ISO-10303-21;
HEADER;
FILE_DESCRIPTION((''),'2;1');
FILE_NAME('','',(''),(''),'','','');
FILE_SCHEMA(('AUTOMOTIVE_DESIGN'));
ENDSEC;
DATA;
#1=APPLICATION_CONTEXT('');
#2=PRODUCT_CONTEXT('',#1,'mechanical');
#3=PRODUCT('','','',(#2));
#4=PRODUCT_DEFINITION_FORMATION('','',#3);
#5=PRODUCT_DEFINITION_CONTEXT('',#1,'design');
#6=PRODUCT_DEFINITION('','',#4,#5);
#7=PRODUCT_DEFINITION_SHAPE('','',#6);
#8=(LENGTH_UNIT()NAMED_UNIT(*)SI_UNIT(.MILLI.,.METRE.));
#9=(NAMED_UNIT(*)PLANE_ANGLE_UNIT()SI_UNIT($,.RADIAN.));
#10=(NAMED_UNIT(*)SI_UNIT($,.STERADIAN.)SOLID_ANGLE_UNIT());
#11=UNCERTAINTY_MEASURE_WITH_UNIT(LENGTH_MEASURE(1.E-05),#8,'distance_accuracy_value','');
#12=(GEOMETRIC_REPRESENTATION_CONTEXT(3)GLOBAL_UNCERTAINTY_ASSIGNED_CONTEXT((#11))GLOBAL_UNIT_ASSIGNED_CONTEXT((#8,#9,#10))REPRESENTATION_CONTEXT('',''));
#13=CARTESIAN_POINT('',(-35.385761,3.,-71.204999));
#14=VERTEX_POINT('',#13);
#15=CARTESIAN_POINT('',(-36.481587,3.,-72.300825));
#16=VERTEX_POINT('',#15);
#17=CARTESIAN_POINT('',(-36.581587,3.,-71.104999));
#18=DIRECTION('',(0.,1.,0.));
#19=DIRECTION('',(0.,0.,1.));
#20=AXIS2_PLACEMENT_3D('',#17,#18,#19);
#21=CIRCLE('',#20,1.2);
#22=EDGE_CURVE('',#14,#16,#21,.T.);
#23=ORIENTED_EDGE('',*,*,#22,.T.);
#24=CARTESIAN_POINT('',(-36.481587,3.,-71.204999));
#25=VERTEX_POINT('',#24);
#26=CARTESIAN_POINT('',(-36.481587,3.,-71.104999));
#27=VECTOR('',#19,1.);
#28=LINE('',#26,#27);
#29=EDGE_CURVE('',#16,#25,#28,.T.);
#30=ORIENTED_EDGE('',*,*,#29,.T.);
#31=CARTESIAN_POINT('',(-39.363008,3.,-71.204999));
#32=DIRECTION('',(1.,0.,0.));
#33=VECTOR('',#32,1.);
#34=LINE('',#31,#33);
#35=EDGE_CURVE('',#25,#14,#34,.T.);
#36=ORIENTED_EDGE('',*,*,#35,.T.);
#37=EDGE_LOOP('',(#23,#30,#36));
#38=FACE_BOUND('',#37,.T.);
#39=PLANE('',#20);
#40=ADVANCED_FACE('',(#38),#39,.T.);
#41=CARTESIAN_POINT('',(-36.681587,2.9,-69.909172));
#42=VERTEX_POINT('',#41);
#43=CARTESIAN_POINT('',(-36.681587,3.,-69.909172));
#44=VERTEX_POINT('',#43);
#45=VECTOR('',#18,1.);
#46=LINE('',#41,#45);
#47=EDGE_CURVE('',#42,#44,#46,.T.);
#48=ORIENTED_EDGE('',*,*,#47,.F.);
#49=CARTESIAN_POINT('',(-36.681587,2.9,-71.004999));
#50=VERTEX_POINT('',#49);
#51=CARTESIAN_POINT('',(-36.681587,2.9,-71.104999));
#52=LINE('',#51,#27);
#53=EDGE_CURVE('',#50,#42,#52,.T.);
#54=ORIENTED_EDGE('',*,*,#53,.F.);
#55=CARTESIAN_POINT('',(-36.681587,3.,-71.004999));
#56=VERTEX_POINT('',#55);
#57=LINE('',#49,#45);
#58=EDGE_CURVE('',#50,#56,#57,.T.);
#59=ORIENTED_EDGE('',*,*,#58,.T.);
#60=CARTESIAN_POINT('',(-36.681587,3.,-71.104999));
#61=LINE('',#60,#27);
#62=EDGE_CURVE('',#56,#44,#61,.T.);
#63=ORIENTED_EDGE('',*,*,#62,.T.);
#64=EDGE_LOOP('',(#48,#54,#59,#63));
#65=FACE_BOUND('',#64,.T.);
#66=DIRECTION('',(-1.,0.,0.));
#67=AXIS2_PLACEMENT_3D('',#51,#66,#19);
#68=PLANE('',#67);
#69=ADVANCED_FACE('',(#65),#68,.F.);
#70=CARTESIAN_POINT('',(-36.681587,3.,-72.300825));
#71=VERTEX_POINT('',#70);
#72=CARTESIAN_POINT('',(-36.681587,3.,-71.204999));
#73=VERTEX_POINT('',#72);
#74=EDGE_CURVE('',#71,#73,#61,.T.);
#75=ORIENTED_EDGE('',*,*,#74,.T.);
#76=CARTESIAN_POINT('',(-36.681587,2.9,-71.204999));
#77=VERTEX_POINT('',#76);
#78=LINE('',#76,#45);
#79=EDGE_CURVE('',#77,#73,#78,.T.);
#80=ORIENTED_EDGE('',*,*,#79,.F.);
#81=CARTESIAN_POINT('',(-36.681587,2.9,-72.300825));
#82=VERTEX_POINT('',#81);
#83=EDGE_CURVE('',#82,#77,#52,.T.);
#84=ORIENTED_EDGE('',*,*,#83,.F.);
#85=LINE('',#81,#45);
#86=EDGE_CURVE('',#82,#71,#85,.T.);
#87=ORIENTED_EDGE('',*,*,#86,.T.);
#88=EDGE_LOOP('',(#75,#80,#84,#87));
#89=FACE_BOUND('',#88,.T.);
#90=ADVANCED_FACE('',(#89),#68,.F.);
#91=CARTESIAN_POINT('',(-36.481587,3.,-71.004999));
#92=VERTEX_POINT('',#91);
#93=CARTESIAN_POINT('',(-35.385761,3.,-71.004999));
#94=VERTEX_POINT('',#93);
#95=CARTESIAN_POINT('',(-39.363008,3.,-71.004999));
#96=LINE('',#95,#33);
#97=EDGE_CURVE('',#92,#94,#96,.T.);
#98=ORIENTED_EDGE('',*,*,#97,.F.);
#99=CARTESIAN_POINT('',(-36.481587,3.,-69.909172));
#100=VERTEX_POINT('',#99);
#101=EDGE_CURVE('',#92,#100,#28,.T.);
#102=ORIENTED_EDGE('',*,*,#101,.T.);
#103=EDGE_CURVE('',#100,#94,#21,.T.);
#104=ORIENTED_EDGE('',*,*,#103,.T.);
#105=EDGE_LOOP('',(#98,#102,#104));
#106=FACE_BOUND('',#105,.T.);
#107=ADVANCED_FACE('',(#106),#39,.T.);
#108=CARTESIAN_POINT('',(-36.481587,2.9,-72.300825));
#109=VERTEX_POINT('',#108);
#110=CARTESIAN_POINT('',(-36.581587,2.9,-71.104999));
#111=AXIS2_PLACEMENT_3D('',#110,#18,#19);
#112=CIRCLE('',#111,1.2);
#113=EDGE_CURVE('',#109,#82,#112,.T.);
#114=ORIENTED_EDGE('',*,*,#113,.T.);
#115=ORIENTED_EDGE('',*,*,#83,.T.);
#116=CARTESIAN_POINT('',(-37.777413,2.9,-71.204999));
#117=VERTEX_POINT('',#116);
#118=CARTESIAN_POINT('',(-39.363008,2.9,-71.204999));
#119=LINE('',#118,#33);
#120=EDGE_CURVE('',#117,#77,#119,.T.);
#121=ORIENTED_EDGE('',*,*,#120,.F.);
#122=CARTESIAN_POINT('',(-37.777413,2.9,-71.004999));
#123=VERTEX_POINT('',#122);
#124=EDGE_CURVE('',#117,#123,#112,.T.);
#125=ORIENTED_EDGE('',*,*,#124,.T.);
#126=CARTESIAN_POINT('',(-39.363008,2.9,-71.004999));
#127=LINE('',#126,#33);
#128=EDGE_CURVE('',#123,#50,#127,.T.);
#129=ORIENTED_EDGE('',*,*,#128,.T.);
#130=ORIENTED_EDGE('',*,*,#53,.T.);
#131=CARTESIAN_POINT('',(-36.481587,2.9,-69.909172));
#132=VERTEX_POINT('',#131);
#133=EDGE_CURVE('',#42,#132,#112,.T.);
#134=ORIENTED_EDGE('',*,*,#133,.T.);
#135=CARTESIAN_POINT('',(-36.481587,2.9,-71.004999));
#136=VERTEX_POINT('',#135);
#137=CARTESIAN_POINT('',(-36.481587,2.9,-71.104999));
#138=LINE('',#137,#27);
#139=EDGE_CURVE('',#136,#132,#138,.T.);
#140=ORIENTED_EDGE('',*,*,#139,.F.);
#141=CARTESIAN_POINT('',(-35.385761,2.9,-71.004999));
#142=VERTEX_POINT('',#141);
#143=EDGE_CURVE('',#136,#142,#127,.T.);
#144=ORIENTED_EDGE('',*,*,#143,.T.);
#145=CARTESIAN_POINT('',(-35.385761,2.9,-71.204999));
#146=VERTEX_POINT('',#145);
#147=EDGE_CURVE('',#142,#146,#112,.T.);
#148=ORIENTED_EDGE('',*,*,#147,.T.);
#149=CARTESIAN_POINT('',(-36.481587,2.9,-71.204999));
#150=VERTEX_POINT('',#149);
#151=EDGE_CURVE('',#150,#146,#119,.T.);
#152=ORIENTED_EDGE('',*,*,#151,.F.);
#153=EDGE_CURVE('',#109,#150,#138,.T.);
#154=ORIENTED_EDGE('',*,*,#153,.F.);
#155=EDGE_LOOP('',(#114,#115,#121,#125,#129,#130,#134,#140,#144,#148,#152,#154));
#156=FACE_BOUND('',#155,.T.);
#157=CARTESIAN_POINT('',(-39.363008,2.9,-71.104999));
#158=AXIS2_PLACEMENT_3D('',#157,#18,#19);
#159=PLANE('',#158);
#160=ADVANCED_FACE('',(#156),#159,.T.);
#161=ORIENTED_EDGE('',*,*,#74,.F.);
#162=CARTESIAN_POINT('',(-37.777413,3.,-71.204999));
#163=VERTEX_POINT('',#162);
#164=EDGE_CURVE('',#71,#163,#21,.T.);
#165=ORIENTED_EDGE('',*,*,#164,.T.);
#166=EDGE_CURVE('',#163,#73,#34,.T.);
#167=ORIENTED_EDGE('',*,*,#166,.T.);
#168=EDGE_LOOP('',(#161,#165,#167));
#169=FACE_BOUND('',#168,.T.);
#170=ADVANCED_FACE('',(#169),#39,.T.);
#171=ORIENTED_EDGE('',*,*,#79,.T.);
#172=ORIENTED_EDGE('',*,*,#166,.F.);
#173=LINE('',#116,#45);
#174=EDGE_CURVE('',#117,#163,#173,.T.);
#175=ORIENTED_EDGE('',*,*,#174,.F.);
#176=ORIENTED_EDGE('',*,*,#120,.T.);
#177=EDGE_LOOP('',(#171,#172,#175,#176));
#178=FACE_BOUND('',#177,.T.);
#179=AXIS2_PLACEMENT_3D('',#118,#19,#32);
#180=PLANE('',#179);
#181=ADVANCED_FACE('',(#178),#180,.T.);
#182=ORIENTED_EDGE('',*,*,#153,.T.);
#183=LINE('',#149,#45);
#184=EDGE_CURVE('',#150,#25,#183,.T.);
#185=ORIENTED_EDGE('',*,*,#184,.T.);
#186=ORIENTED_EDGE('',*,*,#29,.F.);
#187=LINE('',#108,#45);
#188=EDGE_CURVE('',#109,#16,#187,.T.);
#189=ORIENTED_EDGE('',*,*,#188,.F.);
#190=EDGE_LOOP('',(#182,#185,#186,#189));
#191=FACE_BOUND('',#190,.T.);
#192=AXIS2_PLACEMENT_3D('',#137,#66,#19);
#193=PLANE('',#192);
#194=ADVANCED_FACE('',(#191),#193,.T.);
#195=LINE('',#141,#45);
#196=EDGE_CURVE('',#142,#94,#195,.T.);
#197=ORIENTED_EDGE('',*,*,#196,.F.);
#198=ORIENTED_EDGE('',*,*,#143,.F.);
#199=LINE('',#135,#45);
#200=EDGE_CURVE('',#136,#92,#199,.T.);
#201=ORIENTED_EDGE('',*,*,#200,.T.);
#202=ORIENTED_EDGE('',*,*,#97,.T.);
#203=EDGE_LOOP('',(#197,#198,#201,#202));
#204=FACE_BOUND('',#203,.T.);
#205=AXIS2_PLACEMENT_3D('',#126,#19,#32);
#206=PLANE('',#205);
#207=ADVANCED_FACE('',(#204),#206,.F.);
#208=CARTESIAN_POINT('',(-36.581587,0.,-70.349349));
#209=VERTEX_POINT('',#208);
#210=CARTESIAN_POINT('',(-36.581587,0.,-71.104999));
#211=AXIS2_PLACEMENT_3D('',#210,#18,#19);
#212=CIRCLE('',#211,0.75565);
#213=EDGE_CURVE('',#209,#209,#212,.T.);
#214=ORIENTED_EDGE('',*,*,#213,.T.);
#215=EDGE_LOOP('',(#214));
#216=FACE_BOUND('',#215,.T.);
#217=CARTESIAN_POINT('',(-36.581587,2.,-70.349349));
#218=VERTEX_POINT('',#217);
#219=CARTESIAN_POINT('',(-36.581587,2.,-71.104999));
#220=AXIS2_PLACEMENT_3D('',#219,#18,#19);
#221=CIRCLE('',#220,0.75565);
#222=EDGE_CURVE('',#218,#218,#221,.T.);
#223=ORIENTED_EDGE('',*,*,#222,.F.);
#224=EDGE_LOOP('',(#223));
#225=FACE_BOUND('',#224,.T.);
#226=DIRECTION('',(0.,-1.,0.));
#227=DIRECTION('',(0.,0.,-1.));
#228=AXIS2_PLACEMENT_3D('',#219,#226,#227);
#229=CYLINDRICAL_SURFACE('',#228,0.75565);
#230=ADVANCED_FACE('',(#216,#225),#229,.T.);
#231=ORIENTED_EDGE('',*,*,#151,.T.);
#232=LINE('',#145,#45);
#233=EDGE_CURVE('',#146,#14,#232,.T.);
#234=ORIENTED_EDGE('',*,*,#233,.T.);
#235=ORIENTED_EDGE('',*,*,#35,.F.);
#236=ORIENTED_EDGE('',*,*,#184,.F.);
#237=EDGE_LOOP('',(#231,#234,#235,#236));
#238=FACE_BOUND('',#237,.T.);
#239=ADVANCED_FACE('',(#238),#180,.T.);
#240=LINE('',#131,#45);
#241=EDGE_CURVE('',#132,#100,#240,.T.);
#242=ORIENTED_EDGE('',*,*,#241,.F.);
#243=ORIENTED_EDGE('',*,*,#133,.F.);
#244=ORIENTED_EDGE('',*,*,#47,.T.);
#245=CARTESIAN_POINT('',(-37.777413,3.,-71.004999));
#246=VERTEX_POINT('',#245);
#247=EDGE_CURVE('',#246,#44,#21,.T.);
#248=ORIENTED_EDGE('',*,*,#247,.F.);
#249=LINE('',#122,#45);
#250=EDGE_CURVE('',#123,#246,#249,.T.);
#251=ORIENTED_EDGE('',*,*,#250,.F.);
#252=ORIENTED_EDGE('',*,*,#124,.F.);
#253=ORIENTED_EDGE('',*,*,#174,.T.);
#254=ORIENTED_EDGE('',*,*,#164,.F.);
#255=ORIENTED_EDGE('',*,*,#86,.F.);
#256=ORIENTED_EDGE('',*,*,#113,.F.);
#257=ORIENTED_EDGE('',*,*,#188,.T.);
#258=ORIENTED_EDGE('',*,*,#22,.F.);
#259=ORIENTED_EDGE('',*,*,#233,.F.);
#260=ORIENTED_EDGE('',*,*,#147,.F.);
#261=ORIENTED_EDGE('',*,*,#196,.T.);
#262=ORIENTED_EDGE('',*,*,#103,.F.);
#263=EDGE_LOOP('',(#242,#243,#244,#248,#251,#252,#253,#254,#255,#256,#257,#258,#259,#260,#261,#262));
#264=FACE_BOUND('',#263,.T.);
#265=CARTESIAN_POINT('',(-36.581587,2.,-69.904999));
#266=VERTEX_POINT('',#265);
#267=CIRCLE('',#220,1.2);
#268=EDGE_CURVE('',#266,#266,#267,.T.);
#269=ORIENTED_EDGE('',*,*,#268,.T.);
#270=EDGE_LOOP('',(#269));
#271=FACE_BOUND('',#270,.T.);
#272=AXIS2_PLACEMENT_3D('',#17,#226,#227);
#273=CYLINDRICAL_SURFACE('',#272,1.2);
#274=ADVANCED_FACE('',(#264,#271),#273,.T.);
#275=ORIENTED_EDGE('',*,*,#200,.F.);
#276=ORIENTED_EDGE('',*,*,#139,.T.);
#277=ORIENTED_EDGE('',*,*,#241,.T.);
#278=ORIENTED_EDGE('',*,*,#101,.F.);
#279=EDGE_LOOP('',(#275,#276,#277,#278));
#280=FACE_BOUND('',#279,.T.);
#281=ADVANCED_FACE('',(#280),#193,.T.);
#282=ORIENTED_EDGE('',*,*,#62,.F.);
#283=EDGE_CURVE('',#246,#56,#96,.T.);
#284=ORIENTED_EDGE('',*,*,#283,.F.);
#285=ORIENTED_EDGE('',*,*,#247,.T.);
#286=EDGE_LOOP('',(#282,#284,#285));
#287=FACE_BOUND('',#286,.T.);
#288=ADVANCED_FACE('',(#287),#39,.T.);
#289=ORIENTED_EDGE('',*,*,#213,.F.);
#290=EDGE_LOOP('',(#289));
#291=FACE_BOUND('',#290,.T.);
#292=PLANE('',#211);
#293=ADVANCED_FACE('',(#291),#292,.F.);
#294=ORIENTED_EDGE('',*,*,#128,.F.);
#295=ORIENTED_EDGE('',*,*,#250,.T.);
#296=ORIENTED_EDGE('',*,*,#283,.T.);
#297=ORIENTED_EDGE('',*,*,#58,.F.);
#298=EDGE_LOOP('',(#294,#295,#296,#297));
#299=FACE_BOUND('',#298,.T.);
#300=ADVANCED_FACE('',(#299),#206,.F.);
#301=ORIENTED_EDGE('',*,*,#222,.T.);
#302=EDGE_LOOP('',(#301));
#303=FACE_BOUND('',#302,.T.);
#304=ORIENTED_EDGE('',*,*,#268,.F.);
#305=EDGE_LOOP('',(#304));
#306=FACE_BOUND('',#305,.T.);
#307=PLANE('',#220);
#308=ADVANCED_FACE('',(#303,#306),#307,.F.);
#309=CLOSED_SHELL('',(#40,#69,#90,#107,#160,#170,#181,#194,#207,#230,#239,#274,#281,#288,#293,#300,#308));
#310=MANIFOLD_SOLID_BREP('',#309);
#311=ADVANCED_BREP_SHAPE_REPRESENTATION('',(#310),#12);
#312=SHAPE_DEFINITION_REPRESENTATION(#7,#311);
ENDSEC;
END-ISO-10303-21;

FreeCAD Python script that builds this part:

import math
import FreeCAD as App
import Part
import Sketcher

V = App.Vector

doc = App.newDocument("Part")
params = doc.addObject("Spreadsheet::Sheet", "Params")
for row, (alias, value) in enumerate([
    ("pad1_length", "2 mm"),
    ("sketch2_diameter", "2.4 mm"),
    ("pad2_length", "1 mm"),
    ("sketch3_radius", "1.199999 mm"),
    ("pocket1_length", "0.1 mm"),
], start=1):
    params.set(f"A{row}", alias)
    params.set(f"B{row}", "=" + value)
    params.setAlias(f"B{row}", alias)

body = doc.addObject("PartDesign::Body", "Body")

sketch1 = body.newObject("Sketcher::SketchObject", "Sketch")
sketch1.AttachmentSupport = (doc.getObject("XZ_Plane"), [""])
sketch1.MapMode = "FlatFace"
sketch1.addGeometry(Part.Circle(V(-36.581587, -71.104999, 0), V(0, 0, 1), 0.75565), False)
sketch1.addConstraint([
    Sketcher.Constraint("Diameter", 0, 1.5113),
    Sketcher.Constraint("DistanceY", 0, 3, -1, 1, 71.104999),
    Sketcher.Constraint("DistanceX", 0, 3, -1, 1, 36.581587),
])
pad1 = body.newObject("PartDesign::Pad", "Pad")
pad1.Profile = sketch1
pad1.setExpression("Length", "Params.pad1_length")
pad1.Reversed = True

sketch2 = body.newObject("Sketcher::SketchObject", "Sketch001")
sketch2.AttachmentSupport = (doc.getObject("XZ_Plane"), [""])
sketch2.MapMode = "FlatFace"
sketch2.AttachmentOffset = App.Placement(V(0, 0, -2), App.Rotation())
sketch2.addGeometry(Part.Circle(V(-36.581587, -71.104999, 0), V(0, 0, 1), 1.2), False)
sketch2.addConstraint([
    Sketcher.Constraint("Diameter", 0, 2.4),
    Sketcher.Constraint("DistanceY", 0, 3, -1, 1, 71.104999),
    Sketcher.Constraint("DistanceX", 0, 3, -1, 1, 36.581587),
])
sketch2.setExpression("Constraints[0]", "Params.sketch2_diameter")
pad2 = body.newObject("PartDesign::Pad", "Pad001")
pad2.Profile = sketch2
pad2.setExpression("Length", "Params.pad2_length")
pad2.Reversed = True

sketch3 = body.newObject("Sketcher::SketchObject", "Sketch002")
sketch3.AttachmentSupport = (doc.getObject("XZ_Plane"), [""])
sketch3.MapMode = "FlatFace"
sketch3.AttachmentOffset = App.Placement(V(0, 0, -2.9), App.Rotation())
sketch3.addGeometry([
    Part.ArcOfCircle(Part.Circle(V(-36.581587, -71.104999, 0), V(0, 0, 1), 1.199999), math.radians(-90.000001), math.radians(-85.219806)),
    Part.ArcOfCircle(Part.Circle(V(-36.581587, -71.104999, 0), V(0, 0, 1), 1.199999), math.radians(-94.780194), math.radians(-89.999999)),
    Part.LineSegment(V(-36.681587, -72.300825, 0), V(-36.681587, -71.204999, 0)),
    Part.LineSegment(V(-36.681587, -71.204999, 0), V(-37.777413, -71.204999, 0)),
    Part.ArcOfCircle(Part.Circle(V(-36.581587, -71.104999, 0), V(0, 0, 1), 1.2), math.radians(179.999999), math.radians(184.780192)),
    Part.ArcOfCircle(Part.Circle(V(-36.581587, -71.104999, 0), V(0, 0, 1), 1.2), math.radians(175.219808), math.radians(180.000001)),
    Part.LineSegment(V(-37.777413, -71.004999, 0), V(-36.681587, -71.004999, 0)),
    Part.LineSegment(V(-36.681587, -71.004999, 0), V(-36.681587, -69.909172, 0)),
    Part.ArcOfCircle(Part.Circle(V(-36.581587, -71.104999, 0), V(0, 0, 1), 1.2), math.radians(90.000001), math.radians(94.780191)),
    Part.ArcOfCircle(Part.Circle(V(-36.581587, -71.104999, 0), V(0, 0, 1), 1.2), math.radians(85.219809), math.radians(89.999999)),
    Part.LineSegment(V(-36.481587, -69.909172, 0), V(-36.481587, -71.004999, 0)),
    Part.LineSegment(V(-36.481587, -71.004999, 0), V(-35.385761, -71.004999, 0)),
    Part.ArcOfCircle(Part.Circle(V(-36.581587, -71.104999, 0), V(0, 0, 1), 1.2), math.radians(0.000001), math.radians(4.780191)),
    Part.ArcOfCircle(Part.Circle(V(-36.581587, -71.104999, 0), V(0, 0, 1), 1.2), math.radians(-4.780191), math.radians(-0.000001)),
    Part.LineSegment(V(-35.385761, -71.204999, 0), V(-36.481587, -71.204999, 0)),
    Part.LineSegment(V(-36.481587, -71.204999, 0), V(-36.481587, -72.300825, 0)),
], False)
sketch3.addConstraint([
    Sketcher.Constraint("Tangent", 0, 1, 1, 2),
    Sketcher.Constraint("Coincident", 1, 1, 2, 1),
    Sketcher.Constraint("Coincident", 2, 2, 3, 1),
    Sketcher.Constraint("Coincident", 3, 2, 4, 2),
    Sketcher.Constraint("Tangent", 4, 1, 5, 2),
    Sketcher.Constraint("Coincident", 5, 1, 6, 1),
    Sketcher.Constraint("Coincident", 6, 2, 7, 1),
    Sketcher.Constraint("Coincident", 7, 2, 8, 2),
    Sketcher.Constraint("Tangent", 8, 1, 9, 2),
    Sketcher.Constraint("Coincident", 9, 1, 10, 1),
    Sketcher.Constraint("Coincident", 10, 2, 11, 1),
    Sketcher.Constraint("Coincident", 11, 2, 12, 2),
    Sketcher.Constraint("Tangent", 12, 1, 13, 2),
    Sketcher.Constraint("Coincident", 13, 1, 14, 1),
    Sketcher.Constraint("Coincident", 14, 2, 15, 1),
    Sketcher.Constraint("Coincident", 15, 2, 0, 2),
    Sketcher.Constraint("Vertical", 2),
    Sketcher.Constraint("Horizontal", 3),
    Sketcher.Constraint("Horizontal", 6),
    Sketcher.Constraint("Vertical", 7),
    Sketcher.Constraint("Vertical", 10),
    Sketcher.Constraint("Horizontal", 11),
    Sketcher.Constraint("Horizontal", 14),
    Sketcher.Constraint("Vertical", 15),
    Sketcher.Constraint("Coincident", 4, 3, 0, 3),
    Sketcher.Constraint("Coincident", 8, 3, 0, 3),
    Sketcher.Constraint("Coincident", 12, 3, 0, 3),
    Sketcher.Constraint("Equal", 0, 1),
    Sketcher.Constraint("Equal", 1, 4),
    Sketcher.Constraint("Equal", 4, 5),
    Sketcher.Constraint("Equal", 5, 8),
    Sketcher.Constraint("Equal", 8, 9),
    Sketcher.Constraint("Equal", 9, 12),
    Sketcher.Constraint("Equal", 12, 13),
    Sketcher.Constraint("Horizontal", 13, 3, 4, 1),
    Sketcher.Constraint("Horizontal", 7, 2, 9, 1),
    Sketcher.Constraint("Horizontal", 6, 2, 10, 2),
    Sketcher.Constraint("Horizontal", 4, 1, 12, 1),
    Sketcher.Constraint("Horizontal", 3, 2, 13, 1),
    Sketcher.Constraint("Horizontal", 1, 1, 15, 2),
    Sketcher.Constraint("Vertical", 13, 3, 0, 1),
    Sketcher.Constraint("Vertical", 3, 2, 5, 1),
    Sketcher.Constraint("Vertical", 2, 2, 6, 2),
    Sketcher.Constraint("Vertical", 0, 1, 8, 1),
    Sketcher.Constraint("Equal", 14, 2),
    Sketcher.Constraint("Radius", 0, 1.199999),
    Sketcher.Constraint("DistanceX", 1, 1, 0, 1, 0.1),
    Sketcher.Constraint("DistanceY", 0, 3, -1, 1, 71.104999),
    Sketcher.Constraint("DistanceX", 11, 2, -1, 1, 35.385761),
])
sketch3.setExpression("Constraints[45]", "Params.sketch3_radius")
pocket1 = body.newObject("PartDesign::Pocket", "Pocket")
pocket1.Profile = sketch3
pocket1.setExpression("Length", "Params.pocket1_length")

doc.recompute()
